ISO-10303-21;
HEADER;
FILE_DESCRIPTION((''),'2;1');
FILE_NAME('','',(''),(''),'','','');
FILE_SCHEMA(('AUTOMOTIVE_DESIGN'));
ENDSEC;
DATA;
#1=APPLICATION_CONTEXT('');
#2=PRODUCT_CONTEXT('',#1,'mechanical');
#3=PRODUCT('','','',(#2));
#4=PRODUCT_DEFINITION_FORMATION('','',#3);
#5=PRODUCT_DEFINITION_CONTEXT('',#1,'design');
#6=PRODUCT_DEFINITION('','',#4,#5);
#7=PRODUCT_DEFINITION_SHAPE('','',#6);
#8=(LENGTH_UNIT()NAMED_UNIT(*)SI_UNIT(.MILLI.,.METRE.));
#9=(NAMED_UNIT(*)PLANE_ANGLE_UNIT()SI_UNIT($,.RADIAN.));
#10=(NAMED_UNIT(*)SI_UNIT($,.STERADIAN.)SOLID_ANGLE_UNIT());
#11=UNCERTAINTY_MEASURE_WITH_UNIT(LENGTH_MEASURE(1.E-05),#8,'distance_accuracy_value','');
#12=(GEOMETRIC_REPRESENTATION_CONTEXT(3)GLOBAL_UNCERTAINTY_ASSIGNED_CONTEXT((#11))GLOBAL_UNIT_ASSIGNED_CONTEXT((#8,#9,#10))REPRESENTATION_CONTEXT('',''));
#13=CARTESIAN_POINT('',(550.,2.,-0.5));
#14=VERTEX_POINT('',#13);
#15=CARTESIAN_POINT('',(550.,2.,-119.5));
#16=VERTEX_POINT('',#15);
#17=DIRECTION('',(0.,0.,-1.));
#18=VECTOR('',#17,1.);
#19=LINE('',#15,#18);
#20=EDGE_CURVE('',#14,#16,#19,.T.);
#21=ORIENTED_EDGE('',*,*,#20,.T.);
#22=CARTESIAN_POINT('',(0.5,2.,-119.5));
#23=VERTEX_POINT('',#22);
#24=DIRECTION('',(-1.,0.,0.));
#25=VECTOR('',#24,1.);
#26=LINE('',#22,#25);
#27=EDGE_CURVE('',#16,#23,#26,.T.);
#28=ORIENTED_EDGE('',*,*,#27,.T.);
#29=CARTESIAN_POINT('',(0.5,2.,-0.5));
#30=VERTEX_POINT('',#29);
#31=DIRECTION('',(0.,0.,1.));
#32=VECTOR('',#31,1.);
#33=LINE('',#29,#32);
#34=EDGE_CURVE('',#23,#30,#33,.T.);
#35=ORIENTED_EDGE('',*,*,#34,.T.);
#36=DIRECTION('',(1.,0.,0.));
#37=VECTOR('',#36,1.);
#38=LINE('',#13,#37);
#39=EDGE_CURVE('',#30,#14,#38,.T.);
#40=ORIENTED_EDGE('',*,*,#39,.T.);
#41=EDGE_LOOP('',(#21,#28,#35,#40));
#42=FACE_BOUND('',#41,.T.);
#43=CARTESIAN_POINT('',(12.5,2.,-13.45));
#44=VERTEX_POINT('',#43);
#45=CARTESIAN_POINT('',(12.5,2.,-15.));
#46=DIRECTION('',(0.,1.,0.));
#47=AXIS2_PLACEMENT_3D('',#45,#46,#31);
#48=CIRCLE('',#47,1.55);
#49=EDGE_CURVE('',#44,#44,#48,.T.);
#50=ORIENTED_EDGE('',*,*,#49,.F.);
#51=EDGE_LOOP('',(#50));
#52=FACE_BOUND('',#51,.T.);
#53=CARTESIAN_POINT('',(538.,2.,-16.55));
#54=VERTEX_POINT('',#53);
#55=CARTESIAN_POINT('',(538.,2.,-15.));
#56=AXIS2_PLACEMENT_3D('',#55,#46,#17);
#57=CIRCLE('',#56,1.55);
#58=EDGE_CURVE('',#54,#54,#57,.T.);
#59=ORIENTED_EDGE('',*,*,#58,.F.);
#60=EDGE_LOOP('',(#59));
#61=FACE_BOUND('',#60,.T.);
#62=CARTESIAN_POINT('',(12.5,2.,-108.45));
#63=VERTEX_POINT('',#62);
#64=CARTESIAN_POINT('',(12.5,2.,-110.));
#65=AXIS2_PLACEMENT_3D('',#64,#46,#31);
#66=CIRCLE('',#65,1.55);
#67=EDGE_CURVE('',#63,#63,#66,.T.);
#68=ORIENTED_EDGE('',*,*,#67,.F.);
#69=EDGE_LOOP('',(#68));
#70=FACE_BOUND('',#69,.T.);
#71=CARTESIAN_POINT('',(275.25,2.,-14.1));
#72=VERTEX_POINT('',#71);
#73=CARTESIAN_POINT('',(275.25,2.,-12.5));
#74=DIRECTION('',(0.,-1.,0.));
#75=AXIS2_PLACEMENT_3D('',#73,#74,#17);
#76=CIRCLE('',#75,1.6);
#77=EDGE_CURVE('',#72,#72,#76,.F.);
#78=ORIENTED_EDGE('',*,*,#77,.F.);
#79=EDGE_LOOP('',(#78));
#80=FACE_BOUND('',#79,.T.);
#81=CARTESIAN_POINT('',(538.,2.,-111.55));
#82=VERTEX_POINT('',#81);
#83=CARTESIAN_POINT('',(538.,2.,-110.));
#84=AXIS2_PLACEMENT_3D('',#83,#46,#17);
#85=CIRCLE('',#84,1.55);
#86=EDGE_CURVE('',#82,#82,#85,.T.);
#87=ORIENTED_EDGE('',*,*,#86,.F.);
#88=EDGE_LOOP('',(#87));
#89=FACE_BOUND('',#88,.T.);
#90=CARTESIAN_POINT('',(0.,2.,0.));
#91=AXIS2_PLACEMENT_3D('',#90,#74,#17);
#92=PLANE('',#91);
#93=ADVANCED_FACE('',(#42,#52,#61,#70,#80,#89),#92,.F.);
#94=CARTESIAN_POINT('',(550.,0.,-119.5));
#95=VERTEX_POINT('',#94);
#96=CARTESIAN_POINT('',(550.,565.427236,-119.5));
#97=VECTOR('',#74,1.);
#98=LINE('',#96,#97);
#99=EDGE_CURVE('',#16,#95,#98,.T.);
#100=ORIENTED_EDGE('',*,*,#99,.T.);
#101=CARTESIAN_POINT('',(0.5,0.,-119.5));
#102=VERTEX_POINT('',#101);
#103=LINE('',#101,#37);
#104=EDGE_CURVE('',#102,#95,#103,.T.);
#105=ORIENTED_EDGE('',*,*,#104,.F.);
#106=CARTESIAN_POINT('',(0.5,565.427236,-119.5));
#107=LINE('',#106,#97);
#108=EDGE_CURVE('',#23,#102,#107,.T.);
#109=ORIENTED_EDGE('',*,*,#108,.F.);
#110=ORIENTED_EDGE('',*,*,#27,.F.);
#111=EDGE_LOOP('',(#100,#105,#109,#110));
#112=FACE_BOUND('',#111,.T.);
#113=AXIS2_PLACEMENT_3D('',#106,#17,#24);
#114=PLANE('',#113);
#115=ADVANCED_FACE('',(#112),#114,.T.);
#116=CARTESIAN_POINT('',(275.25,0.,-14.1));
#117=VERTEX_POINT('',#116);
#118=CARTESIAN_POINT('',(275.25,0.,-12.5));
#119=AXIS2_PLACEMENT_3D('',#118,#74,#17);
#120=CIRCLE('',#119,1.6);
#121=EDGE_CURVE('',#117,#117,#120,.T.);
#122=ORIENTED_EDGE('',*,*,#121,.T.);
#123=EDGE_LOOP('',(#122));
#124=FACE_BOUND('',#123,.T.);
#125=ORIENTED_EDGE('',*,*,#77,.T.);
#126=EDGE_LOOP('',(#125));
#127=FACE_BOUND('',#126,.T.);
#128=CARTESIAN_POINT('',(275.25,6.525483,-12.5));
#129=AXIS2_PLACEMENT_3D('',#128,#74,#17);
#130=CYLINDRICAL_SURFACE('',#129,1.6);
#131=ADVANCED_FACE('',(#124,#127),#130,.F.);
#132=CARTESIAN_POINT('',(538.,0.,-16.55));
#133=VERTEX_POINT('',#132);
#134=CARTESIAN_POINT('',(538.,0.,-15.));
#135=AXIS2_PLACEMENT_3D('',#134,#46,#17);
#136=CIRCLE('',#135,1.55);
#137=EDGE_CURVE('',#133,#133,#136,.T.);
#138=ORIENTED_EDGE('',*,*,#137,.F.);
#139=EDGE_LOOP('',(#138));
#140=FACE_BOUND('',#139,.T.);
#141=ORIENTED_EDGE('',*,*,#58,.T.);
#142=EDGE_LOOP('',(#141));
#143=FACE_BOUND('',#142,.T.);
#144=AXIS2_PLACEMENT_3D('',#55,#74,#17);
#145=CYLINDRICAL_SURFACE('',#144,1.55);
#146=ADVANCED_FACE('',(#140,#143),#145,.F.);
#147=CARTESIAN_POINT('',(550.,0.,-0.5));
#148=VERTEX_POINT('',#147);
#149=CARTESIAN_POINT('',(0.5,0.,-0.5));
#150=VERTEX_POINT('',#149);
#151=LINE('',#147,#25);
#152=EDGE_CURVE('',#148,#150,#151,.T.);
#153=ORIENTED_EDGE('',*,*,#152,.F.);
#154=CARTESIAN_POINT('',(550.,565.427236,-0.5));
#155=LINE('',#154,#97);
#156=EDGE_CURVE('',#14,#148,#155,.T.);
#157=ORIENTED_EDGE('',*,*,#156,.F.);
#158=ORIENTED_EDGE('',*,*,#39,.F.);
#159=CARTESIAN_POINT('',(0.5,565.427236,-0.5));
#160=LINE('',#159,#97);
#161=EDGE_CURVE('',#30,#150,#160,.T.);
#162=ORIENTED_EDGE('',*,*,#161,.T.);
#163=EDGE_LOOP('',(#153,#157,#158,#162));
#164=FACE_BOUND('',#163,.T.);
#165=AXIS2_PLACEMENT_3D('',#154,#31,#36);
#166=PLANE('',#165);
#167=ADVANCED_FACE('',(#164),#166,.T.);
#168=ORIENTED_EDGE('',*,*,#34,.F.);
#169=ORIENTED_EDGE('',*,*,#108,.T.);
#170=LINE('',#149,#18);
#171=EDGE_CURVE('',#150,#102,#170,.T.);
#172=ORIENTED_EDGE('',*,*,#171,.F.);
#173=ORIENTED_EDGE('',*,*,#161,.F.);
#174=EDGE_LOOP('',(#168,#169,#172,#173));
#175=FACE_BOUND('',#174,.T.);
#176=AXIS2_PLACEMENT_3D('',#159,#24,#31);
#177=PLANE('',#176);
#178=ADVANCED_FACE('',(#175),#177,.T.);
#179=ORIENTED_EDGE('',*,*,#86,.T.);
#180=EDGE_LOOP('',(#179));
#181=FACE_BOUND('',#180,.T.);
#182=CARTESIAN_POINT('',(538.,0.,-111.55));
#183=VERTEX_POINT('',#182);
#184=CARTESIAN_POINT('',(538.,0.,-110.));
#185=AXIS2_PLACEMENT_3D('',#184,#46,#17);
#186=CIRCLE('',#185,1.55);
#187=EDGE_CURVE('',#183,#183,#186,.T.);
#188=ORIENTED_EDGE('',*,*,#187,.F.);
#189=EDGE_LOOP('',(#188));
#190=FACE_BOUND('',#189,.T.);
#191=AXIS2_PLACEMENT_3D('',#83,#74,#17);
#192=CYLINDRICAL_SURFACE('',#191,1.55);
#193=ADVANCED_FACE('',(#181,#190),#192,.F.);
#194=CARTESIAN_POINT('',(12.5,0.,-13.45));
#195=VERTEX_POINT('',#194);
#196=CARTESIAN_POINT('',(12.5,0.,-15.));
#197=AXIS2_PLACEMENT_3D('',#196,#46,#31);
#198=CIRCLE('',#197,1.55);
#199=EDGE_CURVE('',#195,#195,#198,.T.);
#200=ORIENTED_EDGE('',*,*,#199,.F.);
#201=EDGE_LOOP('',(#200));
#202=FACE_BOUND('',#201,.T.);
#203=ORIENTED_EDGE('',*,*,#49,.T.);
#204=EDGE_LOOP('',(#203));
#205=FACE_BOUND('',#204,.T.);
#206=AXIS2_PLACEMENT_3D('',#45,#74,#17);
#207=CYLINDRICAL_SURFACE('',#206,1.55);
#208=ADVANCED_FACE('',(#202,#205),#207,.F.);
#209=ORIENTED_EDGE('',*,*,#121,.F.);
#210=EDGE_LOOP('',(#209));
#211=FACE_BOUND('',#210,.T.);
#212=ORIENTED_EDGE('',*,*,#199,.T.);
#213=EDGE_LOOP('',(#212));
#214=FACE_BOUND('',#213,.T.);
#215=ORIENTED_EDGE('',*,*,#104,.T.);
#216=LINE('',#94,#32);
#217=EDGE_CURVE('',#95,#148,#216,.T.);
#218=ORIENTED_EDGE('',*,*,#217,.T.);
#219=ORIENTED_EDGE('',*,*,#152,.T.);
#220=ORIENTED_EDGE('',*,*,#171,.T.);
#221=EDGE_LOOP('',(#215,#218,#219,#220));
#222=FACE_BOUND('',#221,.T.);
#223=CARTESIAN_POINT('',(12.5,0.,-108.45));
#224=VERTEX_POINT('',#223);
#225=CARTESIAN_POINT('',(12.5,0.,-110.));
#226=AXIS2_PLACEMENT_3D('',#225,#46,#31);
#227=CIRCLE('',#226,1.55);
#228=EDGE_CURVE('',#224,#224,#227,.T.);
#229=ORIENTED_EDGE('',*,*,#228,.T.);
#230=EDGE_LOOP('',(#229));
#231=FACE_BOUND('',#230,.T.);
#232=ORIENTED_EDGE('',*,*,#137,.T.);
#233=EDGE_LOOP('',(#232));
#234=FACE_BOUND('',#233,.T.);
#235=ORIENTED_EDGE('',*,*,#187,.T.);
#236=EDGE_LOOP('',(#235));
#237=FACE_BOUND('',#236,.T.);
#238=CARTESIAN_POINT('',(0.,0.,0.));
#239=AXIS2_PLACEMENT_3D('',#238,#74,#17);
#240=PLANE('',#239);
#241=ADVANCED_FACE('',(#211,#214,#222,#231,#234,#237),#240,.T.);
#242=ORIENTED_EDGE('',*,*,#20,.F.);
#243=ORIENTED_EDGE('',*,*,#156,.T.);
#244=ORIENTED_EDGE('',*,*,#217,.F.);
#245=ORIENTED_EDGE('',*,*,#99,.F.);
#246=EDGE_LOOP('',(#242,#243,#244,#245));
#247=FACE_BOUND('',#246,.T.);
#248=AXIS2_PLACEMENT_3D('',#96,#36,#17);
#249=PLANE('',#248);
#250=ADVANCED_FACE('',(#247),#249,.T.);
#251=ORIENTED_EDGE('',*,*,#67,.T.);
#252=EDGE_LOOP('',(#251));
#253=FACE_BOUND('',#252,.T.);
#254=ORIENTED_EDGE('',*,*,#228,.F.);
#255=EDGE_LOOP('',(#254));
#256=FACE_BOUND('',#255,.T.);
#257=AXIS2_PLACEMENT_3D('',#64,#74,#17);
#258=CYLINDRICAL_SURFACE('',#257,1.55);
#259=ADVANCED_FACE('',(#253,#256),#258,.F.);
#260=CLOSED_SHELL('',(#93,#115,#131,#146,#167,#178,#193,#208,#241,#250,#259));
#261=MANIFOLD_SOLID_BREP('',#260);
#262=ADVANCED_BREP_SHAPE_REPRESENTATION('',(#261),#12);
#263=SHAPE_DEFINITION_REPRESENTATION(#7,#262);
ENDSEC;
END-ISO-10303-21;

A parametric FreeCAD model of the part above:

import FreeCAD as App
import Part
import Sketcher

V = App.Vector

doc = App.newDocument("Part")
body = doc.addObject("PartDesign::Body", "Body")

sketch1 = body.newObject("Sketcher::SketchObject", "Sketch")
sketch1.AttachmentSupport = (doc.getObject("XZ_Plane"), [""])
sketch1.MapMode = "FlatFace"
sketch1.addGeometry([
    Part.LineSegment(V(0, -120, 0), V(0, 0, 0)),
    Part.LineSegment(V(0, 0, 0), V(550.5, 0, 0)),
    Part.LineSegment(V(550.5, 0, 0), V(550.5, -120, 0)),
    Part.LineSegment(V(550.5, -120, 0), V(0, -120, 0)),
    Part.Circle(V(12.5, -15, 0), V(0, 0, 1), 1.6),
    Part.Circle(V(538, -15, 0), V(0, 0, 1), 1.6),
    Part.Circle(V(12.5, -110, 0), V(0, 0, 1), 1.6),
    Part.Circle(V(538, -110, 0), V(0, 0, 1), 1.6),
], False)
sketch1.addConstraint([
    Sketcher.Constraint("Coincident", 0, 2, 1, 1),
    Sketcher.Constraint("Coincident", 1, 2, 2, 1),
    Sketcher.Constraint("Coincident", 2, 2, 3, 1),
    Sketcher.Constraint("Coincident", 3, 2, 0, 1),
    Sketcher.Constraint("Vertical", 0),
    Sketcher.Constraint("Horizontal", 1),
    Sketcher.Constraint("Vertical", 2),
    Sketcher.Constraint("Horizontal", 3),
    Sketcher.Constraint("Coincident", 0, 2, -1, 1),
    Sketcher.Constraint("Equal", 4, 5),
    Sketcher.Constraint("Equal", 5, 6),
    Sketcher.Constraint("Equal", 6, 7),
    Sketcher.Constraint("Horizontal", 4, 3, 5, 3),
    Sketcher.Constraint("Horizontal", 6, 3, 7, 3),
    Sketcher.Constraint("Vertical", 4, 3, 6, 3),
    Sketcher.Constraint("Vertical", 5, 3, 7, 3),
    Sketcher.Constraint("Diameter", 4, 3.1),
    Sketcher.Constraint("DistanceY", 0, 1, 0, 2, 120.0),
    Sketcher.Constraint("DistanceX", 1, 1, 1, 2, 550.5),
    Sketcher.Constraint("DistanceY", 4, 3, -1, 1, 15.0),
    Sketcher.Constraint("DistanceX", -1, 1, 5, 3, 538.0),
    Sketcher.Constraint("DistanceY", 6, 3, -1, 1, 110.0),
    Sketcher.Constraint("DistanceX", 4, 3, 1, 2, 538.0),
])
pad1 = body.newObject("PartDesign::Pad", "Pad")
pad1.Profile = sketch1
pad1.Length = 2
pad1.Reversed = True

sketch2 = body.newObject("Sketcher::SketchObject", "Sketch001")
sketch2.AttachmentSupport = (doc.getObject("XZ_Plane"), [""])
sketch2.MapMode = "FlatFace"
sketch2.addGeometry([
    Part.LineSegment(V(0, 0, 0), V(0, -120, 0)),
    Part.LineSegment(V(0, -120, 0), V(550, -120, 0)),
    Part.LineSegment(V(550, -120, 0), V(550, 0, 0)),
    Part.LineSegment(V(550, 0, 0), V(0, 0, 0)),
    Part.LineSegment(V(550, -120, 0), V(0, -120, 0)),
    Part.LineSegment(V(0, -120, 0), V(0, 0, 0)),
    Part.LineSegment(V(0, 0, 0), V(550, 0, 0)),
    Part.LineSegment(V(550, 0, 0), V(550, -120, 0)),
], False)
sketch2.addConstraint([
    Sketcher.Constraint("Coincident", 0, 2, 1, 1),
    Sketcher.Constraint("Coincident", 1, 2, 2, 1),
    Sketcher.Constraint("Coincident", 2, 2, 3, 1),
    Sketcher.Constraint("Coincident", 3, 2, 0, 1),
    Sketcher.Constraint("Coincident", 4, 2, 5, 1),
    Sketcher.Constraint("Coincident", 5, 2, 6, 1),
    Sketcher.Constraint("Coincident", 6, 2, 7, 1),
    Sketcher.Constraint("Coincident", 7, 2, 4, 1),
    Sketcher.Constraint("Vertical", 0),
    Sketcher.Constraint("Horizontal", 1),
    Sketcher.Constraint("Vertical", 2),
    Sketcher.Constraint("Horizontal", 3),
    Sketcher.Constraint("Horizontal", 4),
    Sketcher.Constraint("Vertical", 5),
    Sketcher.Constraint("Horizontal", 6),
    Sketcher.Constraint("Vertical", 7),
    Sketcher.Constraint("Coincident", 3, 2, -1, 1),
    Sketcher.Constraint("DistanceY", 0, 2, 0, 1, 120.0),
    Sketcher.Constraint("DistanceY", 5, 1, 5, 2, 119.0),
    Sketcher.Constraint("DistanceX", 1, 1, 1, 2, 550.5),
    Sketcher.Constraint("DistanceX", 4, 2, 4, 1, 549.5),
    Sketcher.Constraint("DistanceX", -1, 1, 6, 2, 550.0),
    Sketcher.Constraint("DistanceY", 4, 2, -1, 1, 119.5),
])
pocket1 = body.newObject("PartDesign::Pocket", "Pocket")
pocket1.Profile = sketch2
pocket1.Length = 2

sketch3 = body.newObject("Sketcher::SketchObject", "Sketch002")
sketch3.AttachmentSupport = (doc.getObject("XZ_Plane"), [""])
sketch3.MapMode = "FlatFace"
sketch3.addGeometry(Part.Circle(V(275.2, -12.5, 0), V(0, 0, 1), 1.6), False)
sketch3.addConstraint([
    Sketcher.Constraint("Diameter", 0, 3.2),
    Sketcher.Constraint("DistanceY", 0, 3, -1, 1, 12.5),
    Sketcher.Constraint("DistanceX", -1, 1, 0, 3, 275.25),
])
pocket2 = body.newObject("PartDesign::Pocket", "Pocket001")
pocket2.Profile = sketch3
pocket2.Length = 2

doc.recompute()
